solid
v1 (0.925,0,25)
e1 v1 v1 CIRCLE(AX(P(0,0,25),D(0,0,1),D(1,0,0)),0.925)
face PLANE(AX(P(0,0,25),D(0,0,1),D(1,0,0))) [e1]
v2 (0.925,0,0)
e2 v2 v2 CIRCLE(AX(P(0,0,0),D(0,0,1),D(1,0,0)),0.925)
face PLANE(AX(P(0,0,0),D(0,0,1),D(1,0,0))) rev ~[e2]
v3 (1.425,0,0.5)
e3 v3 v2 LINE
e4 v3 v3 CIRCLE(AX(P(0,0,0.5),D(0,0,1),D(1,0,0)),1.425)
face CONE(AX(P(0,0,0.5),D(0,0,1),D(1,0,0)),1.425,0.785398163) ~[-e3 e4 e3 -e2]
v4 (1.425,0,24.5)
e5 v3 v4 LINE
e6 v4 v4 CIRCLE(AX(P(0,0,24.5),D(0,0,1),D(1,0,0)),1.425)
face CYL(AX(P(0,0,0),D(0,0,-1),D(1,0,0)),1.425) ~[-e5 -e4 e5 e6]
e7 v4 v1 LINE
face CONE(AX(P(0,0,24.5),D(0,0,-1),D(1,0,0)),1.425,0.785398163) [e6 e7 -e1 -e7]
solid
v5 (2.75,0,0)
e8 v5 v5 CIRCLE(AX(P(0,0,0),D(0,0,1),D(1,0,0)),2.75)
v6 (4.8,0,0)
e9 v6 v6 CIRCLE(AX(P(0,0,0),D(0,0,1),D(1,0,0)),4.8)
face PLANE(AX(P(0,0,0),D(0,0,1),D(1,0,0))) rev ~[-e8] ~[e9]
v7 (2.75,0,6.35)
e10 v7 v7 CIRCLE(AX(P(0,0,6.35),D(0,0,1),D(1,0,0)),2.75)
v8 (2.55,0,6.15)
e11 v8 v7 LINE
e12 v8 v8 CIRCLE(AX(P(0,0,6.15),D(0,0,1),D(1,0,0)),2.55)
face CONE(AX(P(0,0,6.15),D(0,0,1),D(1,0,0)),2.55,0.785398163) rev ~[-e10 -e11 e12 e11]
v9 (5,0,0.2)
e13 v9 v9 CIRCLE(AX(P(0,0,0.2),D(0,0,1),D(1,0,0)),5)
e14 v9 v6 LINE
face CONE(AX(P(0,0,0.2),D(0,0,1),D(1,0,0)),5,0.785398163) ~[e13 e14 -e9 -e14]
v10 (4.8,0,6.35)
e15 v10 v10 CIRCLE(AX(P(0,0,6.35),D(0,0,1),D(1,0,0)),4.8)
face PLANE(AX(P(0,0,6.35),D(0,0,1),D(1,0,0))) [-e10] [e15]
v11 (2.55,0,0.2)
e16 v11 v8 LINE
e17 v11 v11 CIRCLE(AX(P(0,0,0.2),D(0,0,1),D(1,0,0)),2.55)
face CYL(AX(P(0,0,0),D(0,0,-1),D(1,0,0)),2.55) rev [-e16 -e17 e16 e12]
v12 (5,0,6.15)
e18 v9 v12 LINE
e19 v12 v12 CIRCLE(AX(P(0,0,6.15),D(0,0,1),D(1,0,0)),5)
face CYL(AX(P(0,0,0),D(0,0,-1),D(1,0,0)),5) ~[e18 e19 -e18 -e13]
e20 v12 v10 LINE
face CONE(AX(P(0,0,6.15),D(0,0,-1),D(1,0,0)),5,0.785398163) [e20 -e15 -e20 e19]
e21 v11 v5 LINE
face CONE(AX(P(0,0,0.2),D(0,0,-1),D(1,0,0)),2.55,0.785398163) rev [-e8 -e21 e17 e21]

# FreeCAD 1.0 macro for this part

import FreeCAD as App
import Part
import Sketcher
from FreeCAD import Vector


def edges_at(feature, points):
    """Names of the edges that pass closest to the given points."""
    edges = feature.Shape.Edges
    near = lambda p: min(range(len(edges)), key=lambda i: edges[i].distToShape(Part.Vertex(*p))[0])
    return sorted({f"Edge{near(p) + 1}" for p in points})

doc = App.newDocument("Part")
body = doc.addObject("PartDesign::Body", "Body")

sketch1 = body.newObject("Sketcher::SketchObject", "Sketch")
sketch1.AttachmentSupport = (doc.getObject("XY_Plane"), [""])
sketch1.MapMode = "FlatFace"
sketch1.addGeometry(Part.Circle(Vector(0, 0, 0), Vector(0, 0, 1), 1.4), False)
sketch1.addConstraint(Sketcher.Constraint("Coincident", 0, 3, -1, 1))
sketch1.addConstraint(Sketcher.Constraint("Diameter", 0, 2.85))
pad1 = body.newObject("PartDesign::Pad", "Pad")
pad1.Profile = sketch1
pad1.Length = 25
doc.recompute()

chamfer = body.newObject("PartDesign::Chamfer", "Chamfer")
chamfer.Base = (pad1, edges_at(pad1, [(-1.425, 0, 25)]))
chamfer.Size = 0.5
doc.recompute()

chamfer2 = body.newObject("PartDesign::Chamfer", "Chamfer001")
chamfer2.Base = (chamfer, edges_at(chamfer, [(-1.425, 0, 0)]))
chamfer2.Size = 0.5
body2 = doc.addObject("PartDesign::Body", "Body001")

sketch2 = body2.newObject("Sketcher::SketchObject", "Sketch001")
sketch2.AttachmentSupport = (doc.getObject("XY_Plane001"), [""])
sketch2.MapMode = "FlatFace"
sketch2.addGeometry(Part.Circle(Vector(0, 0, 0), Vector(0, 0, 1), 5), False)
sketch2.addGeometry(Part.Circle(Vector(0, 0, 0), Vector(0, 0, 1), 2.5), False)
sketch2.addConstraint(Sketcher.Constraint("Coincident", 0, 3, -1, 1))
sketch2.addConstraint(Sketcher.Constraint("Coincident", 1, 3, -1, 1))
sketch2.addConstraint(Sketcher.Constraint("Diameter", 0, 10.0))
sketch2.addConstraint(Sketcher.Constraint("Diameter", 1, 5.1))
pad2 = body2.newObject("PartDesign::Pad", "Pad001")
pad2.Profile = sketch2
pad2.Length = 6.35
doc.recompute()

chamfer3 = body2.newObject("PartDesign::Chamfer", "Chamfer002")
chamfer3.Base = (pad2, edges_at(pad2, [
    (-2.55, 0, 6.35),
    (-5, 0, 6.35),
    (-5, 0, 0),
    (-2.55, 0, 0),
]))
chamfer3.Size = 0.2

doc.recompute()
